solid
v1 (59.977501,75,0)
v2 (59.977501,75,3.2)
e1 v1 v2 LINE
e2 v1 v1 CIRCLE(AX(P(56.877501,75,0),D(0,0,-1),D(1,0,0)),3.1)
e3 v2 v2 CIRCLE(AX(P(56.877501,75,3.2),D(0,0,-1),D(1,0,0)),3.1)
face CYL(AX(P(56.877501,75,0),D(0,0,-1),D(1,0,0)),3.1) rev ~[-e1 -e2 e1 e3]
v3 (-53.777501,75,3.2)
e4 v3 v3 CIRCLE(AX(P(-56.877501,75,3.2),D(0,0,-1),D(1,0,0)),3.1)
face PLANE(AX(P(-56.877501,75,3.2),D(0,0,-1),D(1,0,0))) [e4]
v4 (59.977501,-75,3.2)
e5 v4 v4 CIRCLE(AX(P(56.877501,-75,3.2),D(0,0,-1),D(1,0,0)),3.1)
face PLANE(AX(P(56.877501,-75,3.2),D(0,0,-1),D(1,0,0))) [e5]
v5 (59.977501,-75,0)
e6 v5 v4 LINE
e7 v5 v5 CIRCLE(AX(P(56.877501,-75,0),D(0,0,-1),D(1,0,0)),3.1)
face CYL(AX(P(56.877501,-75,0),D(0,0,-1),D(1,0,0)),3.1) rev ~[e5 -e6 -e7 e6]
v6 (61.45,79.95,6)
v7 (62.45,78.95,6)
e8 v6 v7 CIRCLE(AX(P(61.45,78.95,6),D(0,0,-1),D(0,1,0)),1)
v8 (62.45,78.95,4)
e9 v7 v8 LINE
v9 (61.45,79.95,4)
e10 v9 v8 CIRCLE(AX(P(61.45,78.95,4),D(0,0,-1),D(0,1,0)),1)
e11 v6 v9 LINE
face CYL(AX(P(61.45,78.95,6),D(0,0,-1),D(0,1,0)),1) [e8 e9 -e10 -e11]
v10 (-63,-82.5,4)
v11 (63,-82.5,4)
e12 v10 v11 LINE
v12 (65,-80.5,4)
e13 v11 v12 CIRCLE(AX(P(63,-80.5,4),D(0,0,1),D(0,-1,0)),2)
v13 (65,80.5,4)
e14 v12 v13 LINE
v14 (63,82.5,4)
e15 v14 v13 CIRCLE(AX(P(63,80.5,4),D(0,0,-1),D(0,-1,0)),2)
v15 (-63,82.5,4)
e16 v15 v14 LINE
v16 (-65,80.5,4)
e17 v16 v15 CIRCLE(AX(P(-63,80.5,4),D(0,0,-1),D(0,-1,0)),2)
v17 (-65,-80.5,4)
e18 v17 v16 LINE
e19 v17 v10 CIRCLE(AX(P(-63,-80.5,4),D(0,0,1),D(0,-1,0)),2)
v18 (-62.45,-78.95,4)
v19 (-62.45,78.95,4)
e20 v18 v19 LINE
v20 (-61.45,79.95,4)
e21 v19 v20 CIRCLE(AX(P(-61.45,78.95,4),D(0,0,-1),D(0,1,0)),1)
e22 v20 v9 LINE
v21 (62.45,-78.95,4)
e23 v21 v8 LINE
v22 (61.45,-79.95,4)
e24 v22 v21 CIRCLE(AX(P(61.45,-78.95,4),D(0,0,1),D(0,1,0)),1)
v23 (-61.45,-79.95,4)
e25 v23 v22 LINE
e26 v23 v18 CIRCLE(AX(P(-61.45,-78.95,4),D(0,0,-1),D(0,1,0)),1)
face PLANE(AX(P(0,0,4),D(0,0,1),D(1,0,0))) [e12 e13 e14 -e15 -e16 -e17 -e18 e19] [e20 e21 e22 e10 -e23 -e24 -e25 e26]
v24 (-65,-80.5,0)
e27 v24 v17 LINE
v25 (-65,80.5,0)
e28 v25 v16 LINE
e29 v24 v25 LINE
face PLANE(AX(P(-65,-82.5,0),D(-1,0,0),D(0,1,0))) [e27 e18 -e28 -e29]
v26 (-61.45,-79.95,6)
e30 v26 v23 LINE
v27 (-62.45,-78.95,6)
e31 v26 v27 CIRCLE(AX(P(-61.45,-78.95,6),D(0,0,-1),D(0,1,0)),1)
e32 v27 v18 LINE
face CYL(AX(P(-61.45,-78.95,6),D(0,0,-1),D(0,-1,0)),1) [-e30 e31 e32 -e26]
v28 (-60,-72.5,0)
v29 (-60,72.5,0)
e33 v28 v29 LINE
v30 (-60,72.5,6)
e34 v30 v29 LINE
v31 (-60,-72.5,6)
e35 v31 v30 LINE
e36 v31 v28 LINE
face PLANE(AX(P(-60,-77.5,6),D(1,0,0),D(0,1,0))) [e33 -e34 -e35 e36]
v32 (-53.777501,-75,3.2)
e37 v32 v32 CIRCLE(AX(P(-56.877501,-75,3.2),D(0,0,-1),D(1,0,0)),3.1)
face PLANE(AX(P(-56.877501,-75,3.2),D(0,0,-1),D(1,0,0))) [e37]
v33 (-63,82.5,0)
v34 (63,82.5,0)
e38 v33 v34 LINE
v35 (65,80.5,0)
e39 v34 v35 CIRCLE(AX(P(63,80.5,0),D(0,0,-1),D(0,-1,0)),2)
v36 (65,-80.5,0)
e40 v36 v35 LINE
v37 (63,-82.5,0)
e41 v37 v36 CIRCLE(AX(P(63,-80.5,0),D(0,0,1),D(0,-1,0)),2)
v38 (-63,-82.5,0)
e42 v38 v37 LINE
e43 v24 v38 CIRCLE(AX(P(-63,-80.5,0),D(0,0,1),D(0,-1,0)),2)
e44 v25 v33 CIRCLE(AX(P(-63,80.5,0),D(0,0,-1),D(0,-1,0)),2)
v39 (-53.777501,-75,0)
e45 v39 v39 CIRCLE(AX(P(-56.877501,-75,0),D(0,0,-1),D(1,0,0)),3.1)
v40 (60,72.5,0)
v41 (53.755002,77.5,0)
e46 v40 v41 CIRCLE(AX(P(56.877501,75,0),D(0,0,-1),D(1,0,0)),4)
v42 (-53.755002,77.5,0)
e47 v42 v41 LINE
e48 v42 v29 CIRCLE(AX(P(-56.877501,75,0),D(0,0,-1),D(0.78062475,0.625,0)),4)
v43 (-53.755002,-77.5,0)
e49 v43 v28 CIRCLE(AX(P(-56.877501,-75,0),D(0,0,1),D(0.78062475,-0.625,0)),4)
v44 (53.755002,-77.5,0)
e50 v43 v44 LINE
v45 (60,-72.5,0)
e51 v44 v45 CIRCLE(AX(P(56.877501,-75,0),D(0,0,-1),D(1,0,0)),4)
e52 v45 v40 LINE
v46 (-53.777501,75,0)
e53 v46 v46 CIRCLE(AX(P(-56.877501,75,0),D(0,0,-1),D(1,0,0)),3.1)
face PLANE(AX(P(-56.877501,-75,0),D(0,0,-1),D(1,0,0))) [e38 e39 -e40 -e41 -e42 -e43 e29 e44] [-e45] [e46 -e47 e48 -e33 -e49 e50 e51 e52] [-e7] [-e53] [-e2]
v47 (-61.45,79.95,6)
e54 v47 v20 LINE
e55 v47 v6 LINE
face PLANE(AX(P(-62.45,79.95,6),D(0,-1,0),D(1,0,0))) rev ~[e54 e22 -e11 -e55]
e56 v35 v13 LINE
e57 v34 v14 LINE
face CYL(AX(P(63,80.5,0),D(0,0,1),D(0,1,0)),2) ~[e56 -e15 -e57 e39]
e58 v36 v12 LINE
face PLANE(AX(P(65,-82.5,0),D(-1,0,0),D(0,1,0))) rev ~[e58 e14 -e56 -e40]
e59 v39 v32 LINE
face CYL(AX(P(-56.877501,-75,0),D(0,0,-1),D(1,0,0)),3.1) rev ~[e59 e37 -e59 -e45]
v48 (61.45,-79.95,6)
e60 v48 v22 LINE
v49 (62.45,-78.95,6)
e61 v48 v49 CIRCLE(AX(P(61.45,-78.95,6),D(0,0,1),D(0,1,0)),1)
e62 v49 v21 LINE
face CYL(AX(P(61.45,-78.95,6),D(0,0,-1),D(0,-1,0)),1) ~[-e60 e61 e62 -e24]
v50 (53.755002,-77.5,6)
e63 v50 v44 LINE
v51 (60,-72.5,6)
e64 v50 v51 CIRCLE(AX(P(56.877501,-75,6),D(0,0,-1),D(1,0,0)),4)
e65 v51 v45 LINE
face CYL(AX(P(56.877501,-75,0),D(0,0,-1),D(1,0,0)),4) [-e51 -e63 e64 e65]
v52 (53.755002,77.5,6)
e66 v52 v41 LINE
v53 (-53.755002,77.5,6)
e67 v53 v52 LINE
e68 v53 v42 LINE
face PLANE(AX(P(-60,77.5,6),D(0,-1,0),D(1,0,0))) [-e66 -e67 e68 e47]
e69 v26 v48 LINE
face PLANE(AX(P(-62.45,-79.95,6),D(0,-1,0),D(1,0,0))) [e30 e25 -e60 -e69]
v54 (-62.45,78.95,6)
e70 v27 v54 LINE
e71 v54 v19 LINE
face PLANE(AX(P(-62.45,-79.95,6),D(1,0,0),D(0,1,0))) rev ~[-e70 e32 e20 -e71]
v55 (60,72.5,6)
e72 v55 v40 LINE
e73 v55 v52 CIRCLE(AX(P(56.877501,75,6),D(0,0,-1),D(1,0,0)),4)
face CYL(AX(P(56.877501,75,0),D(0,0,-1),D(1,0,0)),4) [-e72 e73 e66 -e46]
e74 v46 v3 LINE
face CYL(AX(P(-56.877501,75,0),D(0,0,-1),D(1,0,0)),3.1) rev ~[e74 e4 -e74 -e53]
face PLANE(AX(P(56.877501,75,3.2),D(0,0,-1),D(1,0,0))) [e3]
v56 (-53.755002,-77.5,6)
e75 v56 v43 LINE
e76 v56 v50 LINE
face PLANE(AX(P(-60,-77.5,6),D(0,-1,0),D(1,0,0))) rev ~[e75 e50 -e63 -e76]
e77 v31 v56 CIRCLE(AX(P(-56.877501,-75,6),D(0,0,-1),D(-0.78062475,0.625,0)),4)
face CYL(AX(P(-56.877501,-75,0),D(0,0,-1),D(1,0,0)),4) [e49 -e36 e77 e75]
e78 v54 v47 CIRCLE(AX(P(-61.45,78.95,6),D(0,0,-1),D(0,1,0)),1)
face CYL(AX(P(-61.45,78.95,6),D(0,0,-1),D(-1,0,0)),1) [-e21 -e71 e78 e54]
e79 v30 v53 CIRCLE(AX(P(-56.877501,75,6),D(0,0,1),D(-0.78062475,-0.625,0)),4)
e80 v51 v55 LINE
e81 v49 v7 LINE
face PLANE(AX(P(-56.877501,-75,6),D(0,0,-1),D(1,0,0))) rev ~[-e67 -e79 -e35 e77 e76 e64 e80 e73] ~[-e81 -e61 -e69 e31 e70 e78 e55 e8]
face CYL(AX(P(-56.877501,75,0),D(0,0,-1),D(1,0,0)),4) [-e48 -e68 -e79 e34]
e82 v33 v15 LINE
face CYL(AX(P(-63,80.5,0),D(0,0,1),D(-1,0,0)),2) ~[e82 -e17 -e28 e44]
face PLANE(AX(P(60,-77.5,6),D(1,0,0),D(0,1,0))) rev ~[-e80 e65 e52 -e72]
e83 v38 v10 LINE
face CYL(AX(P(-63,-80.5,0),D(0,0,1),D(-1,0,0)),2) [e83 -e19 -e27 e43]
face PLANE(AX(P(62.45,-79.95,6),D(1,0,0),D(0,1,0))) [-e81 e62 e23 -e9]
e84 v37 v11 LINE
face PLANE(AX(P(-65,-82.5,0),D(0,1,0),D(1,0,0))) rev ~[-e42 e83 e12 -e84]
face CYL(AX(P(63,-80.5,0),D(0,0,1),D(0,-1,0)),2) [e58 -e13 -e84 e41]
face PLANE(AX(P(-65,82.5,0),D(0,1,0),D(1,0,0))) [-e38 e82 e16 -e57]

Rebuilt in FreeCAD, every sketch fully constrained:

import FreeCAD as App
import Part
import Sketcher
from FreeCAD import Vector
Q = App.Units.Quantity


def edges_at(feature, points):
    """Names of the edges that pass closest to the given points."""
    edges = feature.Shape.Edges
    near = lambda p: min(range(len(edges)), key=lambda i: edges[i].distToShape(Part.Vertex(*p))[0])
    return sorted({f"Edge{near(p) + 1}" for p in points})

doc = App.newDocument("Part")
params = doc.addObject("Spreadsheet::Sheet", "Params")
for row, (alias, value) in enumerate([
    ("sketch1_width", "130 mm"),
    ("sketch1_height", "165 mm"),
    ("pad1_length", "6 mm"),
    ("sketch2_width", "120 mm"),
    ("sketch2_height", "155 mm"),
    ("pocket1_length", "10 mm"),
    ("sketch3_width", "130 mm"),
    ("sketch3_height", "165 mm"),
    ("sketch3_width2", "124.9 mm"),
    ("sketch3_height2", "159.9 mm"),
    ("pocket2_length", "2 mm"),
    ("sketch4_diameter", "8 mm"),
    ("pad2_length", "6 mm"),
    ("sketch5_diameter", "6.2 mm"),
    ("pocket3_length", "3.2 mm"),
    ("fillet_radius", "2 mm"),
    ("fillet2_radius", "1 mm"),
    ("fillet3_radius", "1 mm"),
    ("fillet4_radius", "1 mm"),
    ("fillet5_radius", "1 mm"),
], start=1):
    params.set(f"A{row}", alias)
    params.set(f"B{row}", "=" + value)
    params.setAlias(f"B{row}", alias)

body = doc.addObject("PartDesign::Body", "Body")

sketch1 = doc.addObject("Sketcher::SketchObject", "Sketch")
body.addObject(sketch1)
sketch1.AttachmentSupport = (doc.XY_Plane, [""])
sketch1.MapMode = "FlatFace"
sketch1.addGeometry([
    Part.LineSegment(Vector(-65, 82, 0), Vector(-65, -82, 0)),
    Part.LineSegment(Vector(-65, -82, 0), Vector(65, -82, 0)),
    Part.LineSegment(Vector(65, -82, 0), Vector(65, 82, 0)),
    Part.LineSegment(Vector(65, 82, 0), Vector(-65, 82, 0)),
], False)
sketch1.addConstraint([
    Sketcher.Constraint("Coincident", 0, 2, 1, 1),
    Sketcher.Constraint("Coincident", 1, 2, 2, 1),
    Sketcher.Constraint("Coincident", 2, 2, 3, 1),
    Sketcher.Constraint("Coincident", 3, 2, 0, 1),
    Sketcher.Constraint("Vertical", 0),
    Sketcher.Constraint("Horizontal", 1),
    Sketcher.Constraint("Vertical", 2),
    Sketcher.Constraint("Horizontal", 3),
    Sketcher.Constraint("Symmetric", 0, 2, 2, 2, -1, 1),
    Sketcher.Constraint("DistanceX", 1, 1, 1, 2, Q("130 mm")),
    Sketcher.Constraint("DistanceY", 0, 2, 0, 1, Q("165 mm")),
])
sketch1.setExpression("Constraints[9]", "Params.sketch1_width")
sketch1.setExpression("Constraints[10]", "Params.sketch1_height")
pad1 = doc.addObject("PartDesign::Pad", "Pad")
body.addObject(pad1)
pad1.Profile = sketch1
pad1.setExpression("Length", "Params.pad1_length")

sketch2 = doc.addObject("Sketcher::SketchObject", "Sketch001")
body.addObject(sketch2)
sketch2.AttachmentSupport = (doc.XY_Plane, [""])
sketch2.MapMode = "FlatFace"
sketch2.AttachmentOffset = App.Placement(Vector(0, 0, 6), App.Rotation())
sketch2.addGeometry([
    Part.LineSegment(Vector(-60, 78, 0), Vector(-60, -78, 0)),
    Part.LineSegment(Vector(-60, -78, 0), Vector(60, -78, 0)),
    Part.LineSegment(Vector(60, -78, 0), Vector(60, 78, 0)),
    Part.LineSegment(Vector(60, 78, 0), Vector(-60, 78, 0)),
], False)
sketch2.addConstraint([
    Sketcher.Constraint("Coincident", 0, 2, 1, 1),
    Sketcher.Constraint("Coincident", 1, 2, 2, 1),
    Sketcher.Constraint("Coincident", 2, 2, 3, 1),
    Sketcher.Constraint("Coincident", 3, 2, 0, 1),
    Sketcher.Constraint("Vertical", 0),
    Sketcher.Constraint("Horizontal", 1),
    Sketcher.Constraint("Vertical", 2),
    Sketcher.Constraint("Horizontal", 3),
    Sketcher.Constraint("Symmetric", 0, 2, 2, 2, -1, 1),
    Sketcher.Constraint("DistanceX", 1, 1, 1, 2, Q("120 mm")),
    Sketcher.Constraint("DistanceY", 0, 2, 0, 1, Q("155 mm")),
])
sketch2.setExpression("Constraints[9]", "Params.sketch2_width")
sketch2.setExpression("Constraints[10]", "Params.sketch2_height")
pocket1 = doc.addObject("PartDesign::Pocket", "Pocket")
body.addObject(pocket1)
pocket1.Profile = sketch2
pocket1.setExpression("Length", "Params.pocket1_length")

sketch3 = doc.addObject("Sketcher::SketchObject", "Sketch002")
body.addObject(sketch3)
sketch3.AttachmentSupport = (doc.XY_Plane, [""])
sketch3.MapMode = "FlatFace"
sketch3.AttachmentOffset = App.Placement(Vector(0, 0, 6), App.Rotation())
sketch3.addGeometry([
    Part.LineSegment(Vector(-65, 82, 0), Vector(-65, -82, 0)),
    Part.LineSegment(Vector(-65, -82, 0), Vector(65, -82, 0)),
    Part.LineSegment(Vector(65, -82, 0), Vector(65, 82, 0)),
    Part.LineSegment(Vector(65, 82, 0), Vector(-65, 82, 0)),
    Part.LineSegment(Vector(62, -80, 0), Vector(-62, -80, 0)),
    Part.LineSegment(Vector(-62, -80, 0), Vector(-62, 80, 0)),
    Part.LineSegment(Vector(-62, 80, 0), Vector(62, 80, 0)),
    Part.LineSegment(Vector(62, 80, 0), Vector(62, -80, 0)),
], False)
sketch3.addConstraint([
    Sketcher.Constraint("Coincident", 0, 2, 1, 1),
    Sketcher.Constraint("Coincident", 1, 2, 2, 1),
    Sketcher.Constraint("Coincident", 2, 2, 3, 1),
    Sketcher.Constraint("Coincident", 3, 2, 0, 1),
    Sketcher.Constraint("Coincident", 4, 2, 5, 1),
    Sketcher.Constraint("Coincident", 5, 2, 6, 1),
    Sketcher.Constraint("Coincident", 6, 2, 7, 1),
    Sketcher.Constraint("Coincident", 7, 2, 4, 1),
    Sketcher.Constraint("Vertical", 0),
    Sketcher.Constraint("Horizontal", 1),
    Sketcher.Constraint("Vertical", 2),
    Sketcher.Constraint("Horizontal", 3),
    Sketcher.Constraint("Horizontal", 4),
    Sketcher.Constraint("Vertical", 5),
    Sketcher.Constraint("Horizontal", 6),
    Sketcher.Constraint("Vertical", 7),
    Sketcher.Constraint("Symmetric", 0, 2, 2, 2, -1, 1),
    Sketcher.Constraint("Symmetric", 4, 2, 6, 2, -1, 1),
    Sketcher.Constraint("DistanceX", 1, 1, 1, 2, Q("130 mm")),
    Sketcher.Constraint("DistanceY", 0, 2, 0, 1, Q("165 mm")),
    Sketcher.Constraint("DistanceX", 4, 2, 4, 1, Q("124.9 mm")),
    Sketcher.Constraint("DistanceY", 5, 1, 5, 2, Q("159.9 mm")),
])
sketch3.setExpression("Constraints[18]", "Params.sketch3_width")
sketch3.setExpression("Constraints[19]", "Params.sketch3_height")
sketch3.setExpression("Constraints[20]", "Params.sketch3_width2")
sketch3.setExpression("Constraints[21]", "Params.sketch3_height2")
pocket2 = doc.addObject("PartDesign::Pocket", "Pocket001")
body.addObject(pocket2)
pocket2.Profile = sketch3
pocket2.setExpression("Length", "Params.pocket2_length")

sketch4 = doc.addObject("Sketcher::SketchObject", "Sketch003")
body.addObject(sketch4)
sketch4.AttachmentSupport = (doc.XY_Plane, [""])
sketch4.MapMode = "FlatFace"
sketch4.addGeometry([
    Part.Circle(Vector(-56.9, -75, 0), Vector(0, 0, 1), 4),
    Part.Circle(Vector(56.9, -75, 0), Vector(0, 0, 1), 4),
    Part.Circle(Vector(-56.9, 75, 0), Vector(0, 0, 1), 4),
    Part.Circle(Vector(56.9, 75, 0), Vector(0, 0, 1), 4),
], False)
sketch4.addConstraint([
    Sketcher.Constraint("Equal", 0, 1),
    Sketcher.Constraint("Equal", 1, 2),
    Sketcher.Constraint("Equal", 2, 3),
    Sketcher.Constraint("Symmetric", 1, 3, 2, 3, -1, 1),
    Sketcher.Constraint("Symmetric", 0, 3, 3, 3, -1, 1),
    Sketcher.Constraint("Symmetric", 0, 3, 1, 3, -2),
    Sketcher.Constraint("Diameter", 0, Q("8 mm")),
    Sketcher.Constraint("DistanceY", 0, 3, -1, 1, Q("75 mm")),
    Sketcher.Constraint("DistanceX", 0, 3, -1, 1, Q("56.877501 mm")),
])
sketch4.setExpression("Constraints[6]", "Params.sketch4_diameter")
pad2 = doc.addObject("PartDesign::Pad", "Pad001")
body.addObject(pad2)
pad2.Profile = sketch4
pad2.setExpression("Length", "Params.pad2_length")

sketch5 = doc.addObject("Sketcher::SketchObject", "Sketch004")
body.addObject(sketch5)
sketch5.AttachmentSupport = (doc.XY_Plane, [""])
sketch5.MapMode = "FlatFace"
sketch5.addGeometry([
    Part.Circle(Vector(-56.9, -75, 0), Vector(0, 0, 1), 3.1),
    Part.Circle(Vector(56.9, -75, 0), Vector(0, 0, 1), 3.1),
    Part.Circle(Vector(-56.9, 75, 0), Vector(0, 0, 1), 3.1),
    Part.Circle(Vector(56.9, 75, 0), Vector(0, 0, 1), 3.1),
], False)
sketch5.addConstraint([
    Sketcher.Constraint("Equal", 0, 1),
    Sketcher.Constraint("Equal", 1, 2),
    Sketcher.Constraint("Equal", 2, 3),
    Sketcher.Constraint("Symmetric", 1, 3, 2, 3, -1, 1),
    Sketcher.Constraint("Symmetric", 0, 3, 3, 3, -1, 1),
    Sketcher.Constraint("Symmetric", 0, 3, 1, 3, -2),
    Sketcher.Constraint("Diameter", 0, Q("6.2 mm")),
    Sketcher.Constraint("DistanceY", 0, 3, -1, 1, Q("75 mm")),
    Sketcher.Constraint("DistanceX", 0, 3, -1, 1, Q("56.877501 mm")),
])
sketch5.setExpression("Constraints[6]", "Params.sketch5_diameter")
pocket3 = doc.addObject("PartDesign::Pocket", "Pocket002")
body.addObject(pocket3)
pocket3.Profile = sketch5
pocket3.setExpression("Length", "Params.pocket3_length")
pocket3.Reversed = True
doc.recompute()

fillet = doc.addObject("PartDesign::Fillet", "Fillet")
body.addObject(fillet)
fillet.Base = (pocket3, edges_at(pocket3, [
    (65, -82.5, 2),
    (-65, -82.5, 2),
    (-65, 82.5, 2),
    (65, 82.5, 2),
]))
fillet.setExpression("Radius", "Params.fillet_radius")
doc.recompute()

fillet2 = doc.addObject("PartDesign::Fillet", "Fillet001")
body.addObject(fillet2)
fillet2.Base = (fillet, edges_at(fillet, [(62.45, -79.95, 5)]))
fillet2.setExpression("Radius", "Params.fillet2_radius")
doc.recompute()

fillet3 = doc.addObject("PartDesign::Fillet", "Fillet002")
body.addObject(fillet3)
fillet3.Base = (fillet2, edges_at(fillet2, [(-62.45, -79.95, 5)]))
fillet3.setExpression("Radius", "Params.fillet3_radius")
doc.recompute()

fillet4 = doc.addObject("PartDesign::Fillet", "Fillet003")
body.addObject(fillet4)
fillet4.Base = (fillet3, edges_at(fillet3, [(-62.45, 79.95, 5)]))
fillet4.setExpression("Radius", "Params.fillet4_radius")
doc.recompute()

fillet5 = doc.addObject("PartDesign::Fillet", "Fillet004")
body.addObject(fillet5)
fillet5.Base = (fillet4, edges_at(fillet4, [(62.45, 79.95, 5)]))
fillet5.setExpression("Radius", "Params.fillet5_radius")

doc.recompute()
